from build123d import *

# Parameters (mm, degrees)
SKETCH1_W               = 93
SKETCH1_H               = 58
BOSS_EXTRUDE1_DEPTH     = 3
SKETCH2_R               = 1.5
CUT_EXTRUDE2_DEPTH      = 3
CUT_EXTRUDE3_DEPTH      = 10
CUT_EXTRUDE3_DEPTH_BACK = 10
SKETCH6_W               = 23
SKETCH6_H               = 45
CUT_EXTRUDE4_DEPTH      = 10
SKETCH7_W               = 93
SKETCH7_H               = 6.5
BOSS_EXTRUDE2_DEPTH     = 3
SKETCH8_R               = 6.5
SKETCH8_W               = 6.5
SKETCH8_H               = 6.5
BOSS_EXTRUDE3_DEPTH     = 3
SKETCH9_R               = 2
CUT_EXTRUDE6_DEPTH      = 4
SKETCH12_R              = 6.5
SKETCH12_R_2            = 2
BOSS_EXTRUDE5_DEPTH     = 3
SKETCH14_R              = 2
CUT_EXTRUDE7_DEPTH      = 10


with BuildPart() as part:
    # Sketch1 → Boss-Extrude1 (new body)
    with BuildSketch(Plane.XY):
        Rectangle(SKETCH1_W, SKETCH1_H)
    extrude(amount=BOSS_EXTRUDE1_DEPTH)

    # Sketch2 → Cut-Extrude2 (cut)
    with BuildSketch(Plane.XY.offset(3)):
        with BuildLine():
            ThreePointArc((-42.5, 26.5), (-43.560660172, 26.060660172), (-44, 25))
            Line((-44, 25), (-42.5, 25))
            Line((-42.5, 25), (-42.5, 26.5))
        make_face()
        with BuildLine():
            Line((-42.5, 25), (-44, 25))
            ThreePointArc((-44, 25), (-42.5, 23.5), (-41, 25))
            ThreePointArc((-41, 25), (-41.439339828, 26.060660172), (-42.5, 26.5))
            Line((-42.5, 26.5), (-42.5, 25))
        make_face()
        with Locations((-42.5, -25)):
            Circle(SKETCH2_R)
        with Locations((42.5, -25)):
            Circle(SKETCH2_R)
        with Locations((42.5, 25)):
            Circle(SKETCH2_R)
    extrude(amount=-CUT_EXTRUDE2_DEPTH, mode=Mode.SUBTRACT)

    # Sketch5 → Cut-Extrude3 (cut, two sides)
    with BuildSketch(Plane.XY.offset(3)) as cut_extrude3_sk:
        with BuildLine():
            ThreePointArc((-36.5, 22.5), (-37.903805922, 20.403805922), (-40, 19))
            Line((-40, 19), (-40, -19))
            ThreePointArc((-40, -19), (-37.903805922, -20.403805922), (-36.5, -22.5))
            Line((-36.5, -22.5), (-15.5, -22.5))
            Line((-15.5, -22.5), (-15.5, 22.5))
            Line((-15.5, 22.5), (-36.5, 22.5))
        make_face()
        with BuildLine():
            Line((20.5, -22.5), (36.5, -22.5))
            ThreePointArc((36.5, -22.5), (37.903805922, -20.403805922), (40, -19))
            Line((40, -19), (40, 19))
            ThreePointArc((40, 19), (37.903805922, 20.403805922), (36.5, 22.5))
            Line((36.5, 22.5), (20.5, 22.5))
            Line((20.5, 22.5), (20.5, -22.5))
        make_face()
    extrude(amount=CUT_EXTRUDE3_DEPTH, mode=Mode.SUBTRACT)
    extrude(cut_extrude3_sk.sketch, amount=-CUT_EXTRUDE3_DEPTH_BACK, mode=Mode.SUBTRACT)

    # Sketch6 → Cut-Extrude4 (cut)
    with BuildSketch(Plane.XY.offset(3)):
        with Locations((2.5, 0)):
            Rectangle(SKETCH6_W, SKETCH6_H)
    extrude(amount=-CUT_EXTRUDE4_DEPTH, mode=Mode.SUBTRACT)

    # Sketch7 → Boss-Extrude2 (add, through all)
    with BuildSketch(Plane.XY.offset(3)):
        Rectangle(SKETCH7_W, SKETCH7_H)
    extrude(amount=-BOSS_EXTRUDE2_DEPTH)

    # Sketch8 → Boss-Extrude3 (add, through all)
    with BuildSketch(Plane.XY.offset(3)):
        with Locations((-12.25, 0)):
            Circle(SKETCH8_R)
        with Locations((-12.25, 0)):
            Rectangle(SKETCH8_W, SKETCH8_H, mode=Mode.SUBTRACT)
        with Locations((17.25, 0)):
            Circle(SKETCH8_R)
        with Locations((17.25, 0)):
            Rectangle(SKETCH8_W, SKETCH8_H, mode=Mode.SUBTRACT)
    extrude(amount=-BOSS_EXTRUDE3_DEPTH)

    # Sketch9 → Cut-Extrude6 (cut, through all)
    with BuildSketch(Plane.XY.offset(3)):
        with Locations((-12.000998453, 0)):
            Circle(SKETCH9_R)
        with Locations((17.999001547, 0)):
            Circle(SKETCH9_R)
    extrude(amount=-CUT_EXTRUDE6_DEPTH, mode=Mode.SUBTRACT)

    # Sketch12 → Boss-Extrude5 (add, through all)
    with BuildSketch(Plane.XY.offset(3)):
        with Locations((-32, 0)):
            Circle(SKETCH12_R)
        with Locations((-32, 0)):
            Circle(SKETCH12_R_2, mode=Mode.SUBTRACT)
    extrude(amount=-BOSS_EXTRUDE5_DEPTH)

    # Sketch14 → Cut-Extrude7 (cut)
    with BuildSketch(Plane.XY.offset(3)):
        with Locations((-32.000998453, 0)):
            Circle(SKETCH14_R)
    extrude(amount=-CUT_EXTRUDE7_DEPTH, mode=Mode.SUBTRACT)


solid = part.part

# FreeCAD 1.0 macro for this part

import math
import FreeCAD as App
import Part
import Sketcher
Q = App.Units.Quantity


def add_polygon(sketch, points):
    """Adds a closed chain of lines whose ends are joined by coincident constraints."""
    first, n = sketch.GeometryCount, len(points)
    for a, b in zip(points, points[1:] + points[:1]):
        sketch.addGeometry(Part.LineSegment(App.Vector(*a, 0), App.Vector(*b, 0)), False)
    for i in range(n):
        sketch.addConstraint(Sketcher.Constraint("Coincident", first + i, 2, first + (i + 1) % n, 1))

doc = App.newDocument("Part")
params = doc.addObject("Spreadsheet::Sheet", "Params")
for row, (alias, value) in enumerate([
    ("sketch1_width", "93 mm"),
    ("sketch1_height", "58 mm"),
    ("pad1_length", "3 mm"),
    ("sketch2_diameter", "3 mm"),
    ("pocket1_length", "3 mm"),
    ("sketch3_radius", "6.5 mm"),
    ("sketch3_width", "21 mm"),
    ("sketch3_width2", "16 mm"),
    ("sketch3_height", "38 mm"),
    ("sketch3_height2", "45 mm"),
    ("sketch4_width", "23 mm"),
    ("sketch4_height", "45 mm"),
    ("pocket3_length", "10 mm"),
    ("sketch5_width", "93 mm"),
    ("sketch5_height", "6.5 mm"),
    ("pad2_length", "3 mm"),
    ("sketch6_diameter", "13 mm"),
    ("sketch6_width", "6.5 mm"),
    ("sketch7_diameter", "4 mm"),
    ("sketch8_diameter", "13 mm"),
    ("sketch8_diameter2", "4 mm"),
    ("sketch9_diameter", "4 mm"),
    ("pocket5_length", "10 mm"),
], start=1):
    params.set(f"A{row}", alias)
    params.set(f"B{row}", "=" + value)
    params.setAlias(f"B{row}", alias)

body = doc.addObject("PartDesign::Body", "Body")

# Sketch on XY plane
sketch1 = body.newObject("Sketcher::SketchObject", "Sketch")
sketch1.AttachmentSupport = (doc.getObject("XY_Plane"), [""])
sketch1.MapMode = "FlatFace"
add_polygon(sketch1, [(-46, 29), (-46, -29), (46, -29), (46, 29)])  # lines 0-3
sketch1.addConstraint(Sketcher.Constraint("Vertical", 0))
sketch1.addConstraint(Sketcher.Constraint("Horizontal", 1))
sketch1.addConstraint(Sketcher.Constraint("Vertical", 2))
sketch1.addConstraint(Sketcher.Constraint("Horizontal", 3))
sketch1.addConstraint(Sketcher.Constraint("Symmetric", 0, 2, 2, 2, -1, 1))
sketch1.addConstraint(Sketcher.Constraint("DistanceX", 1, 1, 1, 2, Q("93 mm")))
sketch1.addConstraint(Sketcher.Constraint("DistanceY", 0, 2, 0, 1, Q("58 mm")))
sketch1.setExpression("Constraints[9]", "Params.sketch1_width")
sketch1.setExpression("Constraints[10]", "Params.sketch1_height")
pad1 = body.newObject("PartDesign::Pad", "Pad")
pad1.Profile = sketch1
pad1.setExpression("Length", "Params.pad1_length")

# Sketch on XY plane
sketch2 = body.newObject("Sketcher::SketchObject", "Sketch001")
sketch2.AttachmentSupport = (doc.getObject("XY_Plane"), [""])
sketch2.MapMode = "FlatFace"
sketch2.AttachmentOffset = App.Placement(App.Vector(0, 0, 3), App.Rotation())
sketch2.addGeometry(Part.ArcOfCircle(Part.Circle(App.Vector(-42.5, 25, 0), App.Vector(0, 0, 1), 1.5), math.radians(90), math.radians(180)), False)
sketch2.addGeometry(Part.ArcOfCircle(Part.Circle(App.Vector(-42.5, 25, 0), App.Vector(0, 0, 1), 1.5), math.radians(180), math.radians(360)), False)
sketch2.addGeometry(Part.ArcOfCircle(Part.Circle(App.Vector(-42.5, 25, 0), App.Vector(0, 0, 1), 1.5), math.radians(0), math.radians(90)), False)
sketch2.addGeometry(Part.Circle(App.Vector(-42.5, -25, 0), App.Vector(0, 0, 1), 1.5), False)
sketch2.addGeometry(Part.Circle(App.Vector(42.5, -25, 0), App.Vector(0, 0, 1), 1.5), False)
sketch2.addGeometry(Part.Circle(App.Vector(42.5, 25, 0), App.Vector(0, 0, 1), 1.5), False)
sketch2.addConstraint(Sketcher.Constraint("Tangent", 0, 2, 1, 1))
sketch2.addConstraint(Sketcher.Constraint("Tangent", 1, 2, 2, 1))
sketch2.addConstraint(Sketcher.Constraint("Tangent", 2, 2, 0, 1))
sketch2.addConstraint(Sketcher.Constraint("Equal", 2, 3))
sketch2.addConstraint(Sketcher.Constraint("Equal", 3, 4))
sketch2.addConstraint(Sketcher.Constraint("Equal", 4, 5))
sketch2.addConstraint(Sketcher.Constraint("Symmetric", 0, 3, 4, 3, -1, 1))
sketch2.addConstraint(Sketcher.Constraint("Symmetric", 3, 3, 5, 3, -1, 1))
sketch2.addConstraint(Sketcher.Constraint("Symmetric", 3, 3, 4, 3, -2))
sketch2.addConstraint(Sketcher.Constraint("Horizontal", 5, 3, 0, 2))
sketch2.addConstraint(Sketcher.Constraint("Horizontal", 0, 2, 1, 2))
sketch2.addConstraint(Sketcher.Constraint("Vertical", 3, 3, 2, 2))
sketch2.addConstraint(Sketcher.Constraint("Diameter", 3, Q("3 mm")))
sketch2.addConstraint(Sketcher.Constraint("DistanceY", -1, 1, 0, 3, Q("25 mm")))
sketch2.addConstraint(Sketcher.Constraint("DistanceX", 0, 2, -1, 1, Q("44 mm")))
sketch2.setExpression("Constraints[12]", "Params.sketch2_diameter")
pocket1 = body.newObject("PartDesign::Pocket", "Pocket")
pocket1.Profile = sketch2
pocket1.setExpression("Length", "Params.pocket1_length")

# Sketch on XY plane
sketch3 = body.newObject("Sketcher::SketchObject", "Sketch002")
sketch3.AttachmentSupport = (doc.getObject("XY_Plane"), [""])
sketch3.MapMode = "FlatFace"
sketch3.AttachmentOffset = App.Placement(App.Vector(0, 0, 3), App.Rotation())
sketch3.addGeometry(Part.ArcOfCircle(Part.Circle(App.Vector(-42.5, 25, 0), App.Vector(0, 0, 1), 6.5), math.radians(-67), math.radians(-23)), False)
sketch3.addGeometry(Part.LineSegment(App.Vector(-40, 19, 0), App.Vector(-40, -19, 0)), False)
sketch3.addGeometry(Part.ArcOfCircle(Part.Circle(App.Vector(-42.5, -25, 0), App.Vector(0, 0, 1), 6.5), math.radians(23), math.radians(67)), False)
sketch3.addGeometry(Part.LineSegment(App.Vector(-36.5, -22.5, 0), App.Vector(-15.5, -22.5, 0)), False)
sketch3.addGeometry(Part.LineSegment(App.Vector(-15.5, -22.5, 0), App.Vector(-15.5, 22.5, 0)), False)
sketch3.addGeometry(Part.LineSegment(App.Vector(-15.5, 22.5, 0), App.Vector(-36.5, 22.5, 0)), False)
sketch3.addGeometry(Part.LineSegment(App.Vector(20.5, -22.5, 0), App.Vector(36.5, -22.5, 0)), False)
sketch3.addGeometry(Part.ArcOfCircle(Part.Circle(App.Vector(42.5, -25, 0), App.Vector(0, 0, 1), 6.5), math.radians(113), math.radians(157)), False)
sketch3.addGeometry(Part.LineSegment(App.Vector(40, -19, 0), App.Vector(40, 19, 0)), False)
sketch3.addGeometry(Part.ArcOfCircle(Part.Circle(App.Vector(42.5, 25, 0), App.Vector(0, 0, 1), 6.5), math.radians(-157), math.radians(-113)), False)
sketch3.addGeometry(Part.LineSegment(App.Vector(36.5, 22.5, 0), App.Vector(20.5, 22.5, 0)), False)
sketch3.addGeometry(Part.LineSegment(App.Vector(20.5, 22.5, 0), App.Vector(20.5, -22.5, 0)), False)
sketch3.addConstraint(Sketcher.Constraint("Coincident", 0, 1, 1, 1))
sketch3.addConstraint(Sketcher.Constraint("Coincident", 1, 2, 2, 2))
sketch3.addConstraint(Sketcher.Constraint("Coincident", 2, 1, 3, 1))
sketch3.addConstraint(Sketcher.Constraint("Coincident", 3, 2, 4, 1))
sketch3.addConstraint(Sketcher.Constraint("Coincident", 4, 2, 5, 1))
sketch3.addConstraint(Sketcher.Constraint("Coincident", 5, 2, 0, 2))
sketch3.addConstraint(Sketcher.Constraint("Coincident", 6, 2, 7, 2))
sketch3.addConstraint(Sketcher.Constraint("Coincident", 7, 1, 8, 1))
sketch3.addConstraint(Sketcher.Constraint("Coincident", 8, 2, 9, 2))
sketch3.addConstraint(Sketcher.Constraint("Coincident", 9, 1, 10, 1))
sketch3.addConstraint(Sketcher.Constraint("Coincident", 10, 2, 11, 1))
sketch3.addConstraint(Sketcher.Constraint("Coincident", 11, 2, 6, 1))
sketch3.addConstraint(Sketcher.Constraint("Vertical", 1))
sketch3.addConstraint(Sketcher.Constraint("Horizontal", 3))
sketch3.addConstraint(Sketcher.Constraint("Vertical", 4))
sketch3.addConstraint(Sketcher.Constraint("Horizontal", 5))
sketch3.addConstraint(Sketcher.Constraint("Horizontal", 6))
sketch3.addConstraint(Sketcher.Constraint("Vertical", 8))
sketch3.addConstraint(Sketcher.Constraint("Horizontal", 10))
sketch3.addConstraint(Sketcher.Constraint("Vertical", 11))
sketch3.addConstraint(Sketcher.Constraint("Equal", 0, 2))
sketch3.addConstraint(Sketcher.Constraint("Equal", 2, 7))
sketch3.addConstraint(Sketcher.Constraint("Equal", 7, 9))
sketch3.addConstraint(Sketcher.Constraint("Symmetric", 0, 3, 7, 3, -1, 1))
sketch3.addConstraint(Sketcher.Constraint("Symmetric", 2, 3, 9, 3, -1, 1))
sketch3.addConstraint(Sketcher.Constraint("Symmetric", 2, 3, 7, 3, -2))
sketch3.addConstraint(Sketcher.Constraint("Horizontal", 3, 2, 6, 2))
sketch3.addConstraint(Sketcher.Constraint("Horizontal", 1, 2, 7, 1))
sketch3.addConstraint(Sketcher.Constraint("Horizontal", 5, 2, 9, 1))
sketch3.addConstraint(Sketcher.Constraint("Vertical", 2, 1, 5, 2))
sketch3.addConstraint(Sketcher.Constraint("Radius", 0, Q("6.5 mm")))
sketch3.addConstraint(Sketcher.Constraint("DistanceX", 3, 1, 3, 2, Q("21 mm")))
sketch3.addConstraint(Sketcher.Constraint("DistanceX", 6, 1, 6, 2, Q("16 mm")))
sketch3.addConstraint(Sketcher.Constraint("DistanceY", 1, 2, 1, 1, Q("38 mm")))
sketch3.addConstraint(Sketcher.Constraint("DistanceY", 4, 1, 4, 2, Q("45 mm")))
sketch3.addConstraint(Sketcher.Constraint("DistanceY", -1, 1, 0, 3, Q("25 mm")))
sketch3.addConstraint(Sketcher.Constraint("DistanceX", 0, 1, -1, 1, Q("40 mm")))
sketch3.setExpression("Constraints[30]", "Params.sketch3_radius")
sketch3.setExpression("Constraints[31]", "Params.sketch3_width")
sketch3.setExpression("Constraints[32]", "Params.sketch3_width2")
sketch3.setExpression("Constraints[33]", "Params.sketch3_height")
sketch3.setExpression("Constraints[34]", "Params.sketch3_height2")
pocket2 = body.newObject("PartDesign::Pocket", "Pocket001")
pocket2.Profile = sketch3
pocket2.Type = "ThroughAll"
pocket2.Midplane = True

# Sketch on XY plane
sketch4 = body.newObject("Sketcher::SketchObject", "Sketch003")
sketch4.AttachmentSupport = (doc.getObject("XY_Plane"), [""])
sketch4.MapMode = "FlatFace"
sketch4.AttachmentOffset = App.Placement(App.Vector(0, 0, 3), App.Rotation())
add_polygon(sketch4, [(-9, 22), (-9, -22), (14, -22), (14, 22)])  # lines 0-3
sketch4.addConstraint(Sketcher.Constraint("Vertical", 0))
sketch4.addConstraint(Sketcher.Constraint("Horizontal", 1))
sketch4.addConstraint(Sketcher.Constraint("Vertical", 2))
sketch4.addConstraint(Sketcher.Constraint("Horizontal", 3))
sketch4.addConstraint(Sketcher.Constraint("DistanceX", 1, 1, 1, 2, Q("23 mm")))
sketch4.addConstraint(Sketcher.Constraint("DistanceY", 0, 2, 0, 1, Q("45 mm")))
sketch4.addConstraint(Sketcher.Constraint("DistanceX", 0, 2, -1, 1, Q("9 mm")))
sketch4.addConstraint(Sketcher.Constraint("DistanceY", 0, 2, -1, 1, Q("22.5 mm")))
sketch4.setExpression("Constraints[8]", "Params.sketch4_width")
sketch4.setExpression("Constraints[9]", "Params.sketch4_height")
pocket3 = body.newObject("PartDesign::Pocket", "Pocket002")
pocket3.Profile = sketch4
pocket3.setExpression("Length", "Params.pocket3_length")

# Sketch on XY plane
sketch5 = body.newObject("Sketcher::SketchObject", "Sketch004")
sketch5.AttachmentSupport = (doc.getObject("XY_Plane"), [""])
sketch5.MapMode = "FlatFace"
sketch5.AttachmentOffset = App.Placement(App.Vector(0, 0, 3), App.Rotation())
add_polygon(sketch5, [(-46, 3), (-46, -3), (46, -3), (46, 3)])  # lines 0-3
sketch5.addConstraint(Sketcher.Constraint("Vertical", 0))
sketch5.addConstraint(Sketcher.Constraint("Horizontal", 1))
sketch5.addConstraint(Sketcher.Constraint("Vertical", 2))
sketch5.addConstraint(Sketcher.Constraint("Horizontal", 3))
sketch5.addConstraint(Sketcher.Constraint("Symmetric", 0, 2, 2, 2, -1, 1))
sketch5.addConstraint(Sketcher.Constraint("DistanceX", 1, 1, 1, 2, Q("93 mm")))
sketch5.addConstraint(Sketcher.Constraint("DistanceY", 0, 2, 0, 1, Q("6.5 mm")))
sketch5.setExpression("Constraints[9]", "Params.sketch5_width")
sketch5.setExpression("Constraints[10]", "Params.sketch5_height")
pad2 = body.newObject("PartDesign::Pad", "Pad001")
pad2.Profile = sketch5
pad2.setExpression("Length", "Params.pad2_length")
pad2.Reversed = True

# Sketch on XY plane
sketch6 = body.newObject("Sketcher::SketchObject", "Sketch005")
sketch6.AttachmentSupport = (doc.getObject("XY_Plane"), [""])
sketch6.MapMode = "FlatFace"
sketch6.AttachmentOffset = App.Placement(App.Vector(0, 0, 3), App.Rotation())
sketch6.addGeometry(Part.Circle(App.Vector(-12, 0, 0), App.Vector(0, 0, 1), 6), False)  # 0
add_polygon(sketch6, [(-9, -3), (-16, -3), (-16, 3), (-9, 3)])  # lines 1-4
sketch6.addGeometry(Part.Circle(App.Vector(17, 0, 0), App.Vector(0, 0, 1), 6), False)  # 5
add_polygon(sketch6, [(20, -3), (14, -3), (14, 3), (20, 3)])  # lines 6-9
sketch6.addConstraint(Sketcher.Constraint("Horizontal", 1))
sketch6.addConstraint(Sketcher.Constraint("Vertical", 2))
sketch6.addConstraint(Sketcher.Constraint("Horizontal", 3))
sketch6.addConstraint(Sketcher.Constraint("Vertical", 4))
sketch6.addConstraint(Sketcher.Constraint("Horizontal", 6))
sketch6.addConstraint(Sketcher.Constraint("Vertical", 7))
sketch6.addConstraint(Sketcher.Constraint("Horizontal", 8))
sketch6.addConstraint(Sketcher.Constraint("Vertical", 9))
sketch6.addConstraint(Sketcher.Constraint("Equal", 0, 5))
sketch6.addConstraint(Sketcher.Constraint("PointOnObject", 0, 3, -1))
sketch6.addConstraint(Sketcher.Constraint("PointOnObject", 5, 3, -1))
sketch6.addConstraint(Sketcher.Constraint("Horizontal", 4, 2, 6, 2))
sketch6.addConstraint(Sketcher.Constraint("Horizontal", 3, 2, 7, 2))
sketch6.addConstraint(Sketcher.Constraint("Equal", 3, 6))
sketch6.addConstraint(Sketcher.Constraint("Equal", 8, 2))
sketch6.addConstraint(Sketcher.Constraint("Diameter", 0, Q("13 mm")))
sketch6.addConstraint(Sketcher.Constraint("DistanceX", 1, 2, 1, 1, Q("6.5 mm")))
sketch6.addConstraint(Sketcher.Constraint("DistanceX", 3, 2, -1, 1, Q("9 mm")))
sketch6.addConstraint(Sketcher.Constraint("DistanceX", -1, 1, 6, 2, Q("14 mm")))
sketch6.addConstraint(Sketcher.Constraint("DistanceX", 0, 3, 5, 3, Q("29.5 mm")))
sketch6.addConstraint(Sketcher.Constraint("DistanceX", 0, 3, -1, 1, Q("12.25 mm")))
sketch6.addConstraint(Sketcher.Constraint("DistanceY", 1, 2, -1, 1, Q("3.25 mm")))
sketch6.setExpression("Constraints[23]", "Params.sketch6_diameter")
sketch6.setExpression("Constraints[24]", "Params.sketch6_width")
pad3 = body.newObject("PartDesign::Pad", "Pad002")
pad3.Profile = sketch6
pad3.Type = "UpToLast"
pad3.Reversed = True

# Sketch on XY plane
sketch7 = body.newObject("Sketcher::SketchObject", "Sketch006")
sketch7.AttachmentSupport = (doc.getObject("XY_Plane"), [""])
sketch7.MapMode = "FlatFace"
sketch7.AttachmentOffset = App.Placement(App.Vector(0, 0, 3), App.Rotation())
sketch7.addGeometry(Part.Circle(App.Vector(-12, 0, 0), App.Vector(0, 0, 1), 2), False)
sketch7.addGeometry(Part.Circle(App.Vector(18, 0, 0), App.Vector(0, 0, 1), 2), False)
sketch7.addConstraint(Sketcher.Constraint("Equal", 0, 1))
sketch7.addConstraint(Sketcher.Constraint("PointOnObject", 0, 3, -1))
sketch7.addConstraint(Sketcher.Constraint("PointOnObject", 1, 3, -1))
sketch7.addConstraint(Sketcher.Constraint("Diameter", 0, Q("4 mm")))
sketch7.addConstraint(Sketcher.Constraint("DistanceX", 0, 3, 1, 3, Q("30 mm")))
sketch7.addConstraint(Sketcher.Constraint("DistanceX", 0, 3, -1, 1, Q("12.000998 mm")))
sketch7.setExpression("Constraints[3]", "Params.sketch7_diameter")
pocket4 = body.newObject("PartDesign::Pocket", "Pocket003")
pocket4.Profile = sketch7
pocket4.Type = "ThroughAll"

# Sketch on XY plane
sketch8 = body.newObject("Sketcher::SketchObject", "Sketch007")
sketch8.AttachmentSupport = (doc.getObject("XY_Plane"), [""])
sketch8.MapMode = "FlatFace"
sketch8.AttachmentOffset = App.Placement(App.Vector(0, 0, 3), App.Rotation())
sketch8.addGeometry(Part.Circle(App.Vector(-32, 0, 0), App.Vector(0, 0, 1), 6.5), False)
sketch8.addGeometry(Part.Circle(App.Vector(-32, 0, 0), App.Vector(0, 0, 1), 2), False)
sketch8.addConstraint(Sketcher.Constraint("Coincident", 1, 3, 0, 3))
sketch8.addConstraint(Sketcher.Constraint("PointOnObject", 0, 3, -1))
sketch8.addConstraint(Sketcher.Constraint("Diameter", 0, Q("13 mm")))
sketch8.addConstraint(Sketcher.Constraint("Diameter", 1, Q("4 mm")))
sketch8.addConstraint(Sketcher.Constraint("DistanceX", 0, 3, -1, 1, Q("32 mm")))
sketch8.setExpression("Constraints[2]", "Params.sketch8_diameter")
sketch8.setExpression("Constraints[3]", "Params.sketch8_diameter2")
pad4 = body.newObject("PartDesign::Pad", "Pad003")
pad4.Profile = sketch8
pad4.Type = "UpToLast"
pad4.Reversed = True

# Sketch on XY plane
sketch9 = body.newObject("Sketcher::SketchObject", "Sketch008")
sketch9.AttachmentSupport = (doc.getObject("XY_Plane"), [""])
sketch9.MapMode = "FlatFace"
sketch9.AttachmentOffset = App.Placement(App.Vector(0, 0, 3), App.Rotation())
sketch9.addGeometry(Part.Circle(App.Vector(-32, 0, 0), App.Vector(0, 0, 1), 2), False)
sketch9.addConstraint(Sketcher.Constraint("PointOnObject", 0, 3, -1))
sketch9.addConstraint(Sketcher.Constraint("Diameter", 0, Q("4 mm")))
sketch9.addConstraint(Sketcher.Constraint("DistanceX", 0, 3, -1, 1, Q("32.000998 mm")))
sketch9.setExpression("Constraints[1]", "Params.sketch9_diameter")
pocket5 = body.newObject("PartDesign::Pocket", "Pocket004")
pocket5.Profile = sketch9
pocket5.setExpression("Length", "Params.pocket5_length")

doc.recompute()
